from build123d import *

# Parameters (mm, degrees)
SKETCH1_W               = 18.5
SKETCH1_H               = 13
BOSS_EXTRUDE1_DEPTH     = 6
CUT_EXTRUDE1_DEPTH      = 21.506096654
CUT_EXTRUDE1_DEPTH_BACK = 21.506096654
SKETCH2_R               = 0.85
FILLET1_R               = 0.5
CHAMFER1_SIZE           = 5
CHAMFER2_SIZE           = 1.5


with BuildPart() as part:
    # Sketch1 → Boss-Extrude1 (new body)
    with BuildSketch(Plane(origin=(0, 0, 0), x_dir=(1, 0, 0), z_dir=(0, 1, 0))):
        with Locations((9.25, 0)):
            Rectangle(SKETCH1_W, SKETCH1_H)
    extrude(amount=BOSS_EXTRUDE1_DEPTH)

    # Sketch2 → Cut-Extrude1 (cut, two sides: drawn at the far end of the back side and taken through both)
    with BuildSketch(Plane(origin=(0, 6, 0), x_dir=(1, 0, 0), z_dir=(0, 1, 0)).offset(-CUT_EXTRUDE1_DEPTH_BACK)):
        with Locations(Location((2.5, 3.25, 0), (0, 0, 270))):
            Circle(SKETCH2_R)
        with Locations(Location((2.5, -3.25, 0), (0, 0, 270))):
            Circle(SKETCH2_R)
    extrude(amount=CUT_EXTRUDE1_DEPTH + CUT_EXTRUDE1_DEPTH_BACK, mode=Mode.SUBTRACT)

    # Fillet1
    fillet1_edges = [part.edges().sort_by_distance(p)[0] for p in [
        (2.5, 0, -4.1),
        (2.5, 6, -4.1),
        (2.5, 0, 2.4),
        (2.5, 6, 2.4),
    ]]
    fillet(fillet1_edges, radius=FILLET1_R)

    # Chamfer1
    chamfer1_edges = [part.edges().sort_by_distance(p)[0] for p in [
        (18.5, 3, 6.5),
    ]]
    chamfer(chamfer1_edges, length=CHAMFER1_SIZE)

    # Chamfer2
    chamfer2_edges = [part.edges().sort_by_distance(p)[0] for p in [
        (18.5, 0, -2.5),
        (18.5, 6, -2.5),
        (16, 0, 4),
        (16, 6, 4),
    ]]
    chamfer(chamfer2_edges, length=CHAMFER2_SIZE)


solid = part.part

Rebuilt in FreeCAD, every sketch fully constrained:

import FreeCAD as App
import Part
import Sketcher
from FreeCAD import Vector


def edges_at(feature, points):
    """Names of the edges that pass closest to the given points."""
    edges = feature.Shape.Edges
    near = lambda p: min(range(len(edges)), key=lambda i: edges[i].distToShape(Part.Vertex(*p))[0])
    return sorted({f"Edge{near(p) + 1}" for p in points})


def add_polygon(sketch, points):
    """Adds a closed chain of lines whose ends are joined by coincident constraints."""
    first, n = sketch.GeometryCount, len(points)
    for a, b in zip(points, points[1:] + points[:1]):
        sketch.addGeometry(Part.LineSegment(App.Vector(*a, 0), App.Vector(*b, 0)), False)
    for i in range(n):
        sketch.addConstraint(Sketcher.Constraint("Coincident", first + i, 2, first + (i + 1) % n, 1))

doc = App.newDocument("Part")
body = doc.addObject("PartDesign::Body", "Body")

sketch1 = doc.addObject("Sketcher::SketchObject", "Sketch")
body.addObject(sketch1)
sketch1.AttachmentSupport = (doc.XZ_Plane, [""])
sketch1.MapMode = "FlatFace"
add_polygon(sketch1, [(0, -6), (0, 6), (18, 6), (18, -6)])
sketch1.addConstraint([
    Sketcher.Constraint("Vertical", 0),
    Sketcher.Constraint("Horizontal", 1),
    Sketcher.Constraint("Vertical", 2),
    Sketcher.Constraint("Horizontal", 3),
    Sketcher.Constraint("Symmetric", 0, 2, 3, 2, -1, 1),
    Sketcher.Constraint("DistanceY", 0, 1, 0, 2, 13.0),
    Sketcher.Constraint("DistanceX", 1, 1, 1, 2, 18.5),
])
pad1 = doc.addObject("PartDesign::Pad", "Pad")
body.addObject(pad1)
pad1.Profile = sketch1
pad1.Length = 6
pad1.Reversed = True

sketch2 = doc.addObject("Sketcher::SketchObject", "Sketch001")
body.addObject(sketch2)
sketch2.AttachmentSupport = (doc.XZ_Plane, [""])
sketch2.MapMode = "FlatFace"
sketch2.AttachmentOffset = App.Placement(Vector(0, 0, -6), App.Rotation())
sketch2.addGeometry([
    Part.Circle(Vector(2.5, -3.2, 0), Vector(0, 0, 1), 0.8),
    Part.Circle(Vector(2.5, 3.2, 0), Vector(0, 0, 1), 0.8),
], False)
sketch2.addConstraint([
    Sketcher.Constraint("Equal", 0, 1),
    Sketcher.Constraint("Symmetric", 0, 3, 1, 3, -1),
    Sketcher.Constraint("Diameter", 0, 1.7),
    Sketcher.Constraint("DistanceX", -1, 1, 0, 3, 2.5),
    Sketcher.Constraint("DistanceY", 0, 3, 1, 3, 6.5),
])
pocket1 = doc.addObject("PartDesign::Pocket", "Pocket")
body.addObject(pocket1)
pocket1.Profile = sketch2
pocket1.Type = "ThroughAll"
pocket1.Midplane = True
doc.recompute()

fillet = doc.addObject("PartDesign::Fillet", "Fillet")
body.addObject(fillet)
fillet.Base = (pocket1, edges_at(pocket1, [
    (2.5, 0, -4.1),
    (2.5, 6, -4.1),
    (2.5, 0, 2.4),
    (2.5, 6, 2.4),
]))
fillet.Radius = 0.5
doc.recompute()

chamfer = doc.addObject("PartDesign::Chamfer", "Chamfer")
body.addObject(chamfer)
chamfer.Base = (fillet, edges_at(fillet, [(18.5, 3, 6.5)]))
chamfer.Size = 5
doc.recompute()

chamfer2 = doc.addObject("PartDesign::Chamfer", "Chamfer001")
body.addObject(chamfer2)
chamfer2.Base = (chamfer, edges_at(chamfer, [
    (18.5, 0, -2.5),
    (18.5, 6, -2.5),
    (16, 0, 4),
    (16, 6, 4),
]))
chamfer2.Size = 1.5

doc.recompute()
